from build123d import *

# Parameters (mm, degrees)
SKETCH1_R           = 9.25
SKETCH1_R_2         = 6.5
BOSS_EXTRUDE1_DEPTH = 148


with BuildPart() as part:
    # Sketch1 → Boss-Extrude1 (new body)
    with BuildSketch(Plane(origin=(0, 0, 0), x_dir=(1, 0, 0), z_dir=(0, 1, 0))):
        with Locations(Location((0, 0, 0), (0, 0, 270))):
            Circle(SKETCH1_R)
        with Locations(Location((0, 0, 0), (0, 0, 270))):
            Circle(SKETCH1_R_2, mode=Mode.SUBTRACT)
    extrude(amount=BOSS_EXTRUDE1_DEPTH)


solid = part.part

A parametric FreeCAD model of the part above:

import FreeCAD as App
import Part
import Sketcher
from FreeCAD import Vector
Q = App.Units.Quantity

doc = App.newDocument("Part")
body = doc.addObject("PartDesign::Body", "Body")

# Sketch on XZ plane
sketch1 = body.newObject("Sketcher::SketchObject", "Sketch")
sketch1.AttachmentSupport = (doc.getObject("XZ_Plane"), [""])
sketch1.MapMode = "FlatFace"
sketch1.addGeometry(Part.Circle(Vector(0, 0, 0), Vector(0, 0, 1), 9), False)
sketch1.addGeometry(Part.Circle(Vector(0, 0, 0), Vector(0, 0, 1), 6), False)
sketch1.addConstraint(Sketcher.Constraint("Coincident", 0, 3, -1, 1))
sketch1.addConstraint(Sketcher.Constraint("Coincident", 1, 3, -1, 1))
sketch1.addConstraint(Sketcher.Constraint("Diameter", 1, Q("13 mm")))
sketch1.addConstraint(Sketcher.Constraint("Diameter", 0, Q("18.5 mm")))
pad1 = body.newObject("PartDesign::Pad", "Pad")
pad1.Profile = sketch1
pad1.Length = 148
pad1.Reversed = True

doc.recompute()
